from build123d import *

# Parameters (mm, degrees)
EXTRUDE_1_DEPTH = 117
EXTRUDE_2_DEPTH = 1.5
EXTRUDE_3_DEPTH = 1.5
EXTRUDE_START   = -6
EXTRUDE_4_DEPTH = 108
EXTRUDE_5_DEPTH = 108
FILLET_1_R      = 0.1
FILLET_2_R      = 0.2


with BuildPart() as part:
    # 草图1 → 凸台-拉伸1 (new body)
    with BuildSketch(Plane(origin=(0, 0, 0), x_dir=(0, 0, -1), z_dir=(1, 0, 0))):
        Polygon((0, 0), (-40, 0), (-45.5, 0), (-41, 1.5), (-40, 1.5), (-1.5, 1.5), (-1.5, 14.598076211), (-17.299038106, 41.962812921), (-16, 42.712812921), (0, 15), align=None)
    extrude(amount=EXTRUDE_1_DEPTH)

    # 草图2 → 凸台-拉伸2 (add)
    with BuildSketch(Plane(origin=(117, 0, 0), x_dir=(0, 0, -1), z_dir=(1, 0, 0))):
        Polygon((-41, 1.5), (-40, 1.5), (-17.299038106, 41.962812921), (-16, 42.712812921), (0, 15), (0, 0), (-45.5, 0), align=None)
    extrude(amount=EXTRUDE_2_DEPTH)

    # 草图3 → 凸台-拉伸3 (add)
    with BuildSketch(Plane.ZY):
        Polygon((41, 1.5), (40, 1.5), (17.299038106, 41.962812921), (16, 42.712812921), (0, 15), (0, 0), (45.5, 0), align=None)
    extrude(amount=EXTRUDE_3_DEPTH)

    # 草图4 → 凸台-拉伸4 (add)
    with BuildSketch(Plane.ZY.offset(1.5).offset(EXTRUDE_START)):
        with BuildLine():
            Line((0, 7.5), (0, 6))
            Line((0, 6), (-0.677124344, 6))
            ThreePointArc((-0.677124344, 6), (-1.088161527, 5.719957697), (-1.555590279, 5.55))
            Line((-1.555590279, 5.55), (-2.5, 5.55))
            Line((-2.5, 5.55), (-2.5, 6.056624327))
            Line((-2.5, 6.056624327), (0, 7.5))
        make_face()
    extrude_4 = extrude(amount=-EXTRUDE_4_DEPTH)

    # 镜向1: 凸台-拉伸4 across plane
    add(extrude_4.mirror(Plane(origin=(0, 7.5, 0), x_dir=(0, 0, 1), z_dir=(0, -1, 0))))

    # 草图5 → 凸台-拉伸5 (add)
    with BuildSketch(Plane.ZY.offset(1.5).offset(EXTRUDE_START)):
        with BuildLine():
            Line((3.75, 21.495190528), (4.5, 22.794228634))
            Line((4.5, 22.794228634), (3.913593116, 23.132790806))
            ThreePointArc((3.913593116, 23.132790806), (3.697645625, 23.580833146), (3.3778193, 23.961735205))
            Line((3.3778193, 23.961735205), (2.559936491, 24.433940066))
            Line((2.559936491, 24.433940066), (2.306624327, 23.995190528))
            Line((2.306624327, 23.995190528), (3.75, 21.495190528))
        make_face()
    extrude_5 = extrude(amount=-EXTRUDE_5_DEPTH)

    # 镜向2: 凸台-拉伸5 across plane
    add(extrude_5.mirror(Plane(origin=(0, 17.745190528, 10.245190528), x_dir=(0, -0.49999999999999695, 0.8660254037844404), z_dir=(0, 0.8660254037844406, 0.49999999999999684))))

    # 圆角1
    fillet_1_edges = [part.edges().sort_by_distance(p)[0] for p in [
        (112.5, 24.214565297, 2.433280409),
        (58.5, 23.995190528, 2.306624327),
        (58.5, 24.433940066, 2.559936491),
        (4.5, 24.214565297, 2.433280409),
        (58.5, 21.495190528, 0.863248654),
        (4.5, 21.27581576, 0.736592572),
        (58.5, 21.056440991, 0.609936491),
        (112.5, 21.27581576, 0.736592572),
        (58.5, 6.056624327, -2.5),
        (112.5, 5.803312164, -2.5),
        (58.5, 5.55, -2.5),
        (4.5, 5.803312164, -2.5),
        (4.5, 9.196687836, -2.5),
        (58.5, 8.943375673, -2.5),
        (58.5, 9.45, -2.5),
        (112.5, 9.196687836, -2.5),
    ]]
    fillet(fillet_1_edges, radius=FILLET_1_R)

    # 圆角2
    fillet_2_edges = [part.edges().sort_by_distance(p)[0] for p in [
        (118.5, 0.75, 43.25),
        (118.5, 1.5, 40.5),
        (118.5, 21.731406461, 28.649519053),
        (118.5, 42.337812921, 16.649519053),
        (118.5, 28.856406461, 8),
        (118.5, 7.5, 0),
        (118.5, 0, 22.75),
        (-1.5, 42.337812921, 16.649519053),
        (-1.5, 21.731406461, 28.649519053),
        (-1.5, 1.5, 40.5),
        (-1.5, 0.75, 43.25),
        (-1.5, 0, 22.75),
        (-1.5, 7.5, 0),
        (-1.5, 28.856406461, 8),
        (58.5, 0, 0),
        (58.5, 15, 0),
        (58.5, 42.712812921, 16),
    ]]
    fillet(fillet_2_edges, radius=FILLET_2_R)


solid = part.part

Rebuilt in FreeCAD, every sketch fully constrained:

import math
import FreeCAD as App
import Part
import Sketcher

V = App.Vector
Q = App.Units.Quantity


def edges_at(feature, points):
    """Names of the edges that pass closest to the given points."""
    edges = feature.Shape.Edges
    near = lambda p: min(range(len(edges)), key=lambda i: edges[i].distToShape(Part.Vertex(*p))[0])
    return sorted({f"Edge{near(p) + 1}" for p in points})

doc = App.newDocument("Part")
body = doc.addObject("PartDesign::Body", "Body")

sketch1 = body.newObject("Sketcher::SketchObject", "Sketch")
sketch1.AttachmentSupport = (doc.getObject("YZ_Plane"), [""])
sketch1.MapMode = "FlatFace"
sketch1.addGeometry(Part.LineSegment(V(0, 45.5, 0), V(0, 0, 0)), False)
sketch1.addGeometry(Part.LineSegment(V(0, 0, 0), V(15, 0, 0)), False)
sketch1.addGeometry(Part.LineSegment(V(15, 0, 0), V(42.7, 16, 0)), False)
sketch1.addGeometry(Part.LineSegment(V(42.7, 16, 0), V(42, 17.3, 0)), False)
sketch1.addGeometry(Part.LineSegment(V(42, 17.3, 0), V(14.6, 1.5, 0)), False)
sketch1.addGeometry(Part.LineSegment(V(14.6, 1.5, 0), V(1.5, 1.5, 0)), False)
sketch1.addGeometry(Part.LineSegment(V(1.5, 1.5, 0), V(1.5, 41, 0)), False)
sketch1.addGeometry(Part.LineSegment(V(1.5, 41, 0), V(0, 45.5, 0)), False)
sketch1.addConstraint(Sketcher.Constraint("Coincident", 0, 2, 1, 1))
sketch1.addConstraint(Sketcher.Constraint("Coincident", 1, 2, 2, 1))
sketch1.addConstraint(Sketcher.Constraint("Coincident", 2, 2, 3, 1))
sketch1.addConstraint(Sketcher.Constraint("Coincident", 3, 2, 4, 1))
sketch1.addConstraint(Sketcher.Constraint("Coincident", 4, 2, 5, 1))
sketch1.addConstraint(Sketcher.Constraint("Coincident", 5, 2, 6, 1))
sketch1.addConstraint(Sketcher.Constraint("Coincident", 6, 2, 7, 1))
sketch1.addConstraint(Sketcher.Constraint("Coincident", 7, 2, 0, 1))
sketch1.addConstraint(Sketcher.Constraint("Vertical", 0))
sketch1.addConstraint(Sketcher.Constraint("Horizontal", 1))
sketch1.addConstraint(Sketcher.Constraint("Horizontal", 5))
sketch1.addConstraint(Sketcher.Constraint("Vertical", 6))
sketch1.addConstraint(Sketcher.Constraint("Coincident", 0, 2, -1, 1))
sketch1.addConstraint(Sketcher.Constraint("Perpendicular", 2, 3))
sketch1.addConstraint(Sketcher.Constraint("Perpendicular", 3, 4))
sketch1.addConstraint(Sketcher.Constraint("DistanceX", 1, 1, 1, 2, 15.0))
sketch1.addConstraint(Sketcher.Constraint("Angle", 2, Q("30 deg")))
sketch1.addConstraint(Sketcher.Constraint("Distance", 2, 32.0))
sketch1.addConstraint(Sketcher.Constraint("DistanceY", 0, 2, 0, 1, 45.5))
sketch1.addConstraint(Sketcher.Constraint("DistanceY", 6, 1, 6, 2, 39.5))
sketch1.addConstraint(Sketcher.Constraint("DistanceY", -1, 1, 6, 2, 41.0))
sketch1.addConstraint(Sketcher.Constraint("Distance", 3, 1.5))
sketch1.addConstraint(Sketcher.Constraint("DistanceX", -1, 1, 5, 2, 1.5))
pad1 = body.newObject("PartDesign::Pad", "Pad")
pad1.Profile = sketch1
pad1.Length = 117

sketch2 = body.newObject("Sketcher::SketchObject", "Sketch001")
sketch2.AttachmentSupport = (doc.getObject("YZ_Plane"), [""])
sketch2.MapMode = "FlatFace"
sketch2.AttachmentOffset = App.Placement(V(0, 0, 117), App.Rotation())
sketch2.addGeometry(Part.LineSegment(V(1.5, 40, 0), V(1.5, 41, 0)), False)
sketch2.addGeometry(Part.LineSegment(V(1.5, 41, 0), V(0, 45.5, 0)), False)
sketch2.addGeometry(Part.LineSegment(V(0, 45.5, 0), V(0, 0, 0)), False)
sketch2.addGeometry(Part.LineSegment(V(0, 0, 0), V(15, 0, 0)), False)
sketch2.addGeometry(Part.LineSegment(V(15, 0, 0), V(42.7, 16, 0)), False)
sketch2.addGeometry(Part.LineSegment(V(42.7, 16, 0), V(42, 17.3, 0)), False)
sketch2.addGeometry(Part.LineSegment(V(42, 17.3, 0), V(1.5, 40, 0)), False)
sketch2.addConstraint(Sketcher.Constraint("Coincident", 0, 2, 1, 1))
sketch2.addConstraint(Sketcher.Constraint("Coincident", 1, 2, 2, 1))
sketch2.addConstraint(Sketcher.Constraint("Coincident", 2, 2, 3, 1))
sketch2.addConstraint(Sketcher.Constraint("Coincident", 3, 2, 4, 1))
sketch2.addConstraint(Sketcher.Constraint("Coincident", 4, 2, 5, 1))
sketch2.addConstraint(Sketcher.Constraint("Coincident", 5, 2, 6, 1))
sketch2.addConstraint(Sketcher.Constraint("Coincident", 6, 2, 0, 1))
sketch2.addConstraint(Sketcher.Constraint("Vertical", 0))
sketch2.addConstraint(Sketcher.Constraint("Vertical", 2))
sketch2.addConstraint(Sketcher.Constraint("Horizontal", 3))
sketch2.addConstraint(Sketcher.Constraint("Coincident", 2, 2, -1, 1))
sketch2.addConstraint(Sketcher.Constraint("Perpendicular", 4, 5))
sketch2.addConstraint(Sketcher.Constraint("DistanceX", 3, 1, 3, 2, 15.0))
sketch2.addConstraint(Sketcher.Constraint("DistanceY", 0, 1, 0, 2, 1.0))
sketch2.addConstraint(Sketcher.Constraint("Angle", 4, Q("30 deg")))
sketch2.addConstraint(Sketcher.Constraint("Distance", 4, 32.0))
sketch2.addConstraint(Sketcher.Constraint("DistanceY", 2, 2, 2, 1, 45.5))
sketch2.addConstraint(Sketcher.Constraint("DistanceY", -1, 1, 0, 2, 41.0))
sketch2.addConstraint(Sketcher.Constraint("Distance", 5, 1.5))
sketch2.addConstraint(Sketcher.Constraint("DistanceX", -1, 1, 0, 2, 1.5))
pad2 = body.newObject("PartDesign::Pad", "Pad001")
pad2.Profile = sketch2
pad2.Length = 1.5

sketch3 = body.newObject("Sketcher::SketchObject", "Sketch002")
sketch3.AttachmentSupport = (doc.getObject("YZ_Plane"), [""])
sketch3.MapMode = "FlatFace"
sketch3.addGeometry(Part.LineSegment(V(1.5, 41, 0), V(1.5, 40, 0)), False)
sketch3.addGeometry(Part.LineSegment(V(1.5, 40, 0), V(42, 17.3, 0)), False)
sketch3.addGeometry(Part.LineSegment(V(42, 17.3, 0), V(42.7, 16, 0)), False)
sketch3.addGeometry(Part.LineSegment(V(42.7, 16, 0), V(15, 0, 0)), False)
sketch3.addGeometry(Part.LineSegment(V(15, 0, 0), V(0, 0, 0)), False)
sketch3.addGeometry(Part.LineSegment(V(0, 0, 0), V(0, 45.5, 0)), False)
sketch3.addGeometry(Part.LineSegment(V(0, 45.5, 0), V(1.5, 41, 0)), False)
sketch3.addConstraint(Sketcher.Constraint("Coincident", 0, 2, 1, 1))
sketch3.addConstraint(Sketcher.Constraint("Coincident", 1, 2, 2, 1))
sketch3.addConstraint(Sketcher.Constraint("Coincident", 2, 2, 3, 1))
sketch3.addConstraint(Sketcher.Constraint("Coincident", 3, 2, 4, 1))
sketch3.addConstraint(Sketcher.Constraint("Coincident", 4, 2, 5, 1))
sketch3.addConstraint(Sketcher.Constraint("Coincident", 5, 2, 6, 1))
sketch3.addConstraint(Sketcher.Constraint("Coincident", 6, 2, 0, 1))
sketch3.addConstraint(Sketcher.Constraint("Vertical", 0))
sketch3.addConstraint(Sketcher.Constraint("Horizontal", 4))
sketch3.addConstraint(Sketcher.Constraint("Vertical", 5))
sketch3.addConstraint(Sketcher.Constraint("Coincident", 4, 2, -1, 1))
sketch3.addConstraint(Sketcher.Constraint("Perpendicular", 2, 3))
sketch3.addConstraint(Sketcher.Constraint("DistanceX", 4, 2, 4, 1, 15.0))
sketch3.addConstraint(Sketcher.Constraint("DistanceY", 0, 2, 0, 1, 1.0))
sketch3.addConstraint(Sketcher.Constraint("Angle", 2, Q("-60 deg")))
sketch3.addConstraint(Sketcher.Constraint("Distance", 3, 32.0))
sketch3.addConstraint(Sketcher.Constraint("DistanceY", 5, 1, 5, 2, 45.5))
sketch3.addConstraint(Sketcher.Constraint("DistanceY", -1, 1, 0, 2, 40.0))
sketch3.addConstraint(Sketcher.Constraint("Distance", 2, 1.5))
sketch3.addConstraint(Sketcher.Constraint("DistanceX", -1, 1, 0, 2, 1.5))
pad3 = body.newObject("PartDesign::Pad", "Pad002")
pad3.Profile = sketch3
pad3.Length = 1.5
pad3.Reversed = True

sketch4 = body.newObject("Sketcher::SketchObject", "Sketch003")
sketch4.AttachmentSupport = (doc.getObject("YZ_Plane"), [""])
sketch4.MapMode = "FlatFace"
sketch4.AttachmentOffset = App.Placement(V(0, 0, 4.5), App.Rotation())
sketch4.addGeometry(Part.LineSegment(V(6, 0, 0), V(7.5, 0, 0)), False)
sketch4.addGeometry(Part.LineSegment(V(7.5, 0, 0), V(6.1, -2.5, 0)), False)
sketch4.addGeometry(Part.LineSegment(V(6.1, -2.5, 0), V(5.5, -2.5, 0)), False)
sketch4.addGeometry(Part.LineSegment(V(5.5, -2.5, 0), V(5.5, -1.6, 0)), False)
sketch4.addGeometry(Part.ArcOfCircle(Part.Circle(V(7.5, -2, 0), V(0, 0, 1), 2), math.radians(139), math.radians(167)), False)
sketch4.addGeometry(Part.LineSegment(V(6, -0.7, 0), V(6, 0, 0)), False)
sketch4.addConstraint(Sketcher.Constraint("Coincident", 0, 2, 1, 1))
sketch4.addConstraint(Sketcher.Constraint("Coincident", 1, 2, 2, 1))
sketch4.addConstraint(Sketcher.Constraint("Coincident", 2, 2, 3, 1))
sketch4.addConstraint(Sketcher.Constraint("Coincident", 3, 2, 4, 2))
sketch4.addConstraint(Sketcher.Constraint("Coincident", 4, 1, 5, 1))
sketch4.addConstraint(Sketcher.Constraint("Coincident", 5, 2, 0, 1))
sketch4.addConstraint(Sketcher.Constraint("Horizontal", 0))
sketch4.addConstraint(Sketcher.Constraint("Horizontal", 2))
sketch4.addConstraint(Sketcher.Constraint("Vertical", 3))
sketch4.addConstraint(Sketcher.Constraint("Vertical", 5))
sketch4.addConstraint(Sketcher.Constraint("PointOnObject", 0, 2, -1))
sketch4.addConstraint(Sketcher.Constraint("Vertical", 4, 3, 0, 2))
sketch4.addConstraint(Sketcher.Constraint("Radius", 4, 2.0))
sketch4.addConstraint(Sketcher.Constraint("Angle", 1, Q("-120 deg")))
sketch4.addConstraint(Sketcher.Constraint("DistanceX", 0, 1, 0, 2, 1.5))
sketch4.addConstraint(Sketcher.Constraint("DistanceY", 4, 3, -1, 1, 2.0))
sketch4.addConstraint(Sketcher.Constraint("DistanceX", -1, 1, 4, 1, 6.0))
sketch4.addConstraint(Sketcher.Constraint("DistanceY", 1, 2, -1, 1, 2.5))
sketch4.addConstraint(Sketcher.Constraint("DistanceX", -1, 1, 2, 2, 5.55))
pad4 = body.newObject("PartDesign::Pad", "Pad003")
pad4.Profile = sketch4
pad4.Length = 108
doc.recompute()

datumplane = body.newObject("PartDesign::Plane", "DatumPlane")
datumplane.AttachmentSupport = (doc.getObject("XZ_Plane"), [""])
datumplane.MapMode = "FlatFace"
datumplane.AttachmentOffset = App.Placement(V(0, 0, -7.5), App.Rotation())
mirrored = body.newObject("PartDesign::Mirrored", "Mirrored")
mirrored.Originals = [pad4]
mirrored.MirrorPlane = (datumplane, [""])
body.Tip = mirrored

sketch5 = body.newObject("Sketcher::SketchObject", "Sketch004")
sketch5.AttachmentSupport = (doc.getObject("YZ_Plane"), [""])
sketch5.MapMode = "FlatFace"
sketch5.AttachmentOffset = App.Placement(V(0, 0, 4.5), App.Rotation())
sketch5.addGeometry(Part.LineSegment(V(21.5, 3.8, 0), V(22.8, 4.5, 0)), False)
sketch5.addGeometry(Part.LineSegment(V(22.8, 4.5, 0), V(23.1, 3.9, 0)), False)
sketch5.addGeometry(Part.ArcOfCircle(Part.Circle(V(22.5, 2, 0), V(0, 0, 1), 2), math.radians(43), math.radians(71)), False)
sketch5.addGeometry(Part.LineSegment(V(24, 3.4, 0), V(24.4, 2.6, 0)), False)
sketch5.addGeometry(Part.LineSegment(V(24.4, 2.6, 0), V(24, 2.3, 0)), False)
sketch5.addGeometry(Part.LineSegment(V(24, 2.3, 0), V(21.5, 3.8, 0)), False)
sketch5.addConstraint(Sketcher.Constraint("Coincident", 0, 2, 1, 1))
sketch5.addConstraint(Sketcher.Constraint("Coincident", 1, 2, 2, 2))
sketch5.addConstraint(Sketcher.Constraint("Coincident", 2, 1, 3, 1))
sketch5.addConstraint(Sketcher.Constraint("Coincident", 3, 2, 4, 1))
sketch5.addConstraint(Sketcher.Constraint("Coincident", 4, 2, 5, 1))
sketch5.addConstraint(Sketcher.Constraint("Coincident", 5, 2, 0, 1))
sketch5.addConstraint(Sketcher.Constraint("Perpendicular", 0, 1))
sketch5.addConstraint(Sketcher.Constraint("Parallel", 1, 3))
sketch5.addConstraint(Sketcher.Constraint("Perpendicular", 3, 4))
sketch5.addConstraint(Sketcher.Constraint("Radius", 2, 2.0))
sketch5.addConstraint(Sketcher.Constraint("Angle", 0, Q("30 deg")))
sketch5.addConstraint(Sketcher.Constraint("Angle", 5, Q("150 deg")))
sketch5.addConstraint(Sketcher.Constraint("DistanceX", 5, 2, 2, 3, 1.0))
sketch5.addConstraint(Sketcher.Constraint("Distance", 0, 1.5))
sketch5.addConstraint(Sketcher.Constraint("DistanceY", -1, 1, 0, 2, 4.5))
sketch5.addConstraint(Sketcher.Constraint("DistanceX", 2, 3, 4, 2, 1.5))
sketch5.addConstraint(Sketcher.Constraint("DistanceX", 2, 3, 1, 2, 0.6376))
sketch5.addConstraint(Sketcher.Constraint("Distance", 3, 0.94441))
sketch5.addConstraint(Sketcher.Constraint("DistanceX", -1, 1, 2, 3, 22.495191))
pad5 = body.newObject("PartDesign::Pad", "Pad004")
pad5.Profile = sketch5
pad5.Length = 108
doc.recompute()

datumplane2 = body.newObject("PartDesign::Plane", "DatumPlane001")
datumplane2.Placement = App.Placement(V(0, 17.745191, 10.245191), App.Rotation(V(0, 0.5, -0.866025404), V(-1, 0, 0), V(0, 0.866025404, 0.5), "ZXY"))
mirrored2 = body.newObject("PartDesign::Mirrored", "Mirrored001")
mirrored2.Originals = [pad5]
mirrored2.MirrorPlane = (datumplane2, [""])
body.Tip = mirrored2
doc.recompute()

fillet = body.newObject("PartDesign::Fillet", "Fillet")
fillet.Base = (mirrored2, edges_at(mirrored2, [
    (112.5, 24.215, 2.433),
    (58.5, 23.995, 2.307),
    (58.5, 24.434, 2.56),
    (4.5, 24.215, 2.433),
    (58.5, 21.495, 0.863),
    (4.5, 21.276, 0.737),
    (58.5, 21.056, 0.61),
    (112.5, 21.276, 0.737),
    (58.5, 6.057, -2.5),
    (112.5, 5.803, -2.5),
    (58.5, 5.55, -2.5),
    (4.5, 5.803, -2.5),
    (4.5, 9.197, -2.5),
    (58.5, 8.943, -2.5),
    (58.5, 9.45, -2.5),
    (112.5, 9.197, -2.5),
]))
fillet.Radius = 0.1
doc.recompute()

fillet2 = body.newObject("PartDesign::Fillet", "Fillet001")
fillet2.Base = (fillet, edges_at(fillet, [
    (118.5, 0.75, 43.25),
    (118.5, 1.5, 40.5),
    (118.5, 21.731, 28.65),
    (118.5, 42.338, 16.65),
    (118.5, 28.856, 8),
    (118.5, 7.5, 0),
    (118.5, 0, 22.75),
    (-1.5, 42.338, 16.65),
    (-1.5, 21.731, 28.65),
    (-1.5, 1.5, 40.5),
    (-1.5, 0.75, 43.25),
    (-1.5, 0, 22.75),
    (-1.5, 7.5, 0),
    (-1.5, 28.856, 8),
    (58.5, 0, 0),
    (58.5, 15, 0),
    (58.5, 42.713, 16),
]))
fillet2.Radius = 0.2

doc.recompute()
